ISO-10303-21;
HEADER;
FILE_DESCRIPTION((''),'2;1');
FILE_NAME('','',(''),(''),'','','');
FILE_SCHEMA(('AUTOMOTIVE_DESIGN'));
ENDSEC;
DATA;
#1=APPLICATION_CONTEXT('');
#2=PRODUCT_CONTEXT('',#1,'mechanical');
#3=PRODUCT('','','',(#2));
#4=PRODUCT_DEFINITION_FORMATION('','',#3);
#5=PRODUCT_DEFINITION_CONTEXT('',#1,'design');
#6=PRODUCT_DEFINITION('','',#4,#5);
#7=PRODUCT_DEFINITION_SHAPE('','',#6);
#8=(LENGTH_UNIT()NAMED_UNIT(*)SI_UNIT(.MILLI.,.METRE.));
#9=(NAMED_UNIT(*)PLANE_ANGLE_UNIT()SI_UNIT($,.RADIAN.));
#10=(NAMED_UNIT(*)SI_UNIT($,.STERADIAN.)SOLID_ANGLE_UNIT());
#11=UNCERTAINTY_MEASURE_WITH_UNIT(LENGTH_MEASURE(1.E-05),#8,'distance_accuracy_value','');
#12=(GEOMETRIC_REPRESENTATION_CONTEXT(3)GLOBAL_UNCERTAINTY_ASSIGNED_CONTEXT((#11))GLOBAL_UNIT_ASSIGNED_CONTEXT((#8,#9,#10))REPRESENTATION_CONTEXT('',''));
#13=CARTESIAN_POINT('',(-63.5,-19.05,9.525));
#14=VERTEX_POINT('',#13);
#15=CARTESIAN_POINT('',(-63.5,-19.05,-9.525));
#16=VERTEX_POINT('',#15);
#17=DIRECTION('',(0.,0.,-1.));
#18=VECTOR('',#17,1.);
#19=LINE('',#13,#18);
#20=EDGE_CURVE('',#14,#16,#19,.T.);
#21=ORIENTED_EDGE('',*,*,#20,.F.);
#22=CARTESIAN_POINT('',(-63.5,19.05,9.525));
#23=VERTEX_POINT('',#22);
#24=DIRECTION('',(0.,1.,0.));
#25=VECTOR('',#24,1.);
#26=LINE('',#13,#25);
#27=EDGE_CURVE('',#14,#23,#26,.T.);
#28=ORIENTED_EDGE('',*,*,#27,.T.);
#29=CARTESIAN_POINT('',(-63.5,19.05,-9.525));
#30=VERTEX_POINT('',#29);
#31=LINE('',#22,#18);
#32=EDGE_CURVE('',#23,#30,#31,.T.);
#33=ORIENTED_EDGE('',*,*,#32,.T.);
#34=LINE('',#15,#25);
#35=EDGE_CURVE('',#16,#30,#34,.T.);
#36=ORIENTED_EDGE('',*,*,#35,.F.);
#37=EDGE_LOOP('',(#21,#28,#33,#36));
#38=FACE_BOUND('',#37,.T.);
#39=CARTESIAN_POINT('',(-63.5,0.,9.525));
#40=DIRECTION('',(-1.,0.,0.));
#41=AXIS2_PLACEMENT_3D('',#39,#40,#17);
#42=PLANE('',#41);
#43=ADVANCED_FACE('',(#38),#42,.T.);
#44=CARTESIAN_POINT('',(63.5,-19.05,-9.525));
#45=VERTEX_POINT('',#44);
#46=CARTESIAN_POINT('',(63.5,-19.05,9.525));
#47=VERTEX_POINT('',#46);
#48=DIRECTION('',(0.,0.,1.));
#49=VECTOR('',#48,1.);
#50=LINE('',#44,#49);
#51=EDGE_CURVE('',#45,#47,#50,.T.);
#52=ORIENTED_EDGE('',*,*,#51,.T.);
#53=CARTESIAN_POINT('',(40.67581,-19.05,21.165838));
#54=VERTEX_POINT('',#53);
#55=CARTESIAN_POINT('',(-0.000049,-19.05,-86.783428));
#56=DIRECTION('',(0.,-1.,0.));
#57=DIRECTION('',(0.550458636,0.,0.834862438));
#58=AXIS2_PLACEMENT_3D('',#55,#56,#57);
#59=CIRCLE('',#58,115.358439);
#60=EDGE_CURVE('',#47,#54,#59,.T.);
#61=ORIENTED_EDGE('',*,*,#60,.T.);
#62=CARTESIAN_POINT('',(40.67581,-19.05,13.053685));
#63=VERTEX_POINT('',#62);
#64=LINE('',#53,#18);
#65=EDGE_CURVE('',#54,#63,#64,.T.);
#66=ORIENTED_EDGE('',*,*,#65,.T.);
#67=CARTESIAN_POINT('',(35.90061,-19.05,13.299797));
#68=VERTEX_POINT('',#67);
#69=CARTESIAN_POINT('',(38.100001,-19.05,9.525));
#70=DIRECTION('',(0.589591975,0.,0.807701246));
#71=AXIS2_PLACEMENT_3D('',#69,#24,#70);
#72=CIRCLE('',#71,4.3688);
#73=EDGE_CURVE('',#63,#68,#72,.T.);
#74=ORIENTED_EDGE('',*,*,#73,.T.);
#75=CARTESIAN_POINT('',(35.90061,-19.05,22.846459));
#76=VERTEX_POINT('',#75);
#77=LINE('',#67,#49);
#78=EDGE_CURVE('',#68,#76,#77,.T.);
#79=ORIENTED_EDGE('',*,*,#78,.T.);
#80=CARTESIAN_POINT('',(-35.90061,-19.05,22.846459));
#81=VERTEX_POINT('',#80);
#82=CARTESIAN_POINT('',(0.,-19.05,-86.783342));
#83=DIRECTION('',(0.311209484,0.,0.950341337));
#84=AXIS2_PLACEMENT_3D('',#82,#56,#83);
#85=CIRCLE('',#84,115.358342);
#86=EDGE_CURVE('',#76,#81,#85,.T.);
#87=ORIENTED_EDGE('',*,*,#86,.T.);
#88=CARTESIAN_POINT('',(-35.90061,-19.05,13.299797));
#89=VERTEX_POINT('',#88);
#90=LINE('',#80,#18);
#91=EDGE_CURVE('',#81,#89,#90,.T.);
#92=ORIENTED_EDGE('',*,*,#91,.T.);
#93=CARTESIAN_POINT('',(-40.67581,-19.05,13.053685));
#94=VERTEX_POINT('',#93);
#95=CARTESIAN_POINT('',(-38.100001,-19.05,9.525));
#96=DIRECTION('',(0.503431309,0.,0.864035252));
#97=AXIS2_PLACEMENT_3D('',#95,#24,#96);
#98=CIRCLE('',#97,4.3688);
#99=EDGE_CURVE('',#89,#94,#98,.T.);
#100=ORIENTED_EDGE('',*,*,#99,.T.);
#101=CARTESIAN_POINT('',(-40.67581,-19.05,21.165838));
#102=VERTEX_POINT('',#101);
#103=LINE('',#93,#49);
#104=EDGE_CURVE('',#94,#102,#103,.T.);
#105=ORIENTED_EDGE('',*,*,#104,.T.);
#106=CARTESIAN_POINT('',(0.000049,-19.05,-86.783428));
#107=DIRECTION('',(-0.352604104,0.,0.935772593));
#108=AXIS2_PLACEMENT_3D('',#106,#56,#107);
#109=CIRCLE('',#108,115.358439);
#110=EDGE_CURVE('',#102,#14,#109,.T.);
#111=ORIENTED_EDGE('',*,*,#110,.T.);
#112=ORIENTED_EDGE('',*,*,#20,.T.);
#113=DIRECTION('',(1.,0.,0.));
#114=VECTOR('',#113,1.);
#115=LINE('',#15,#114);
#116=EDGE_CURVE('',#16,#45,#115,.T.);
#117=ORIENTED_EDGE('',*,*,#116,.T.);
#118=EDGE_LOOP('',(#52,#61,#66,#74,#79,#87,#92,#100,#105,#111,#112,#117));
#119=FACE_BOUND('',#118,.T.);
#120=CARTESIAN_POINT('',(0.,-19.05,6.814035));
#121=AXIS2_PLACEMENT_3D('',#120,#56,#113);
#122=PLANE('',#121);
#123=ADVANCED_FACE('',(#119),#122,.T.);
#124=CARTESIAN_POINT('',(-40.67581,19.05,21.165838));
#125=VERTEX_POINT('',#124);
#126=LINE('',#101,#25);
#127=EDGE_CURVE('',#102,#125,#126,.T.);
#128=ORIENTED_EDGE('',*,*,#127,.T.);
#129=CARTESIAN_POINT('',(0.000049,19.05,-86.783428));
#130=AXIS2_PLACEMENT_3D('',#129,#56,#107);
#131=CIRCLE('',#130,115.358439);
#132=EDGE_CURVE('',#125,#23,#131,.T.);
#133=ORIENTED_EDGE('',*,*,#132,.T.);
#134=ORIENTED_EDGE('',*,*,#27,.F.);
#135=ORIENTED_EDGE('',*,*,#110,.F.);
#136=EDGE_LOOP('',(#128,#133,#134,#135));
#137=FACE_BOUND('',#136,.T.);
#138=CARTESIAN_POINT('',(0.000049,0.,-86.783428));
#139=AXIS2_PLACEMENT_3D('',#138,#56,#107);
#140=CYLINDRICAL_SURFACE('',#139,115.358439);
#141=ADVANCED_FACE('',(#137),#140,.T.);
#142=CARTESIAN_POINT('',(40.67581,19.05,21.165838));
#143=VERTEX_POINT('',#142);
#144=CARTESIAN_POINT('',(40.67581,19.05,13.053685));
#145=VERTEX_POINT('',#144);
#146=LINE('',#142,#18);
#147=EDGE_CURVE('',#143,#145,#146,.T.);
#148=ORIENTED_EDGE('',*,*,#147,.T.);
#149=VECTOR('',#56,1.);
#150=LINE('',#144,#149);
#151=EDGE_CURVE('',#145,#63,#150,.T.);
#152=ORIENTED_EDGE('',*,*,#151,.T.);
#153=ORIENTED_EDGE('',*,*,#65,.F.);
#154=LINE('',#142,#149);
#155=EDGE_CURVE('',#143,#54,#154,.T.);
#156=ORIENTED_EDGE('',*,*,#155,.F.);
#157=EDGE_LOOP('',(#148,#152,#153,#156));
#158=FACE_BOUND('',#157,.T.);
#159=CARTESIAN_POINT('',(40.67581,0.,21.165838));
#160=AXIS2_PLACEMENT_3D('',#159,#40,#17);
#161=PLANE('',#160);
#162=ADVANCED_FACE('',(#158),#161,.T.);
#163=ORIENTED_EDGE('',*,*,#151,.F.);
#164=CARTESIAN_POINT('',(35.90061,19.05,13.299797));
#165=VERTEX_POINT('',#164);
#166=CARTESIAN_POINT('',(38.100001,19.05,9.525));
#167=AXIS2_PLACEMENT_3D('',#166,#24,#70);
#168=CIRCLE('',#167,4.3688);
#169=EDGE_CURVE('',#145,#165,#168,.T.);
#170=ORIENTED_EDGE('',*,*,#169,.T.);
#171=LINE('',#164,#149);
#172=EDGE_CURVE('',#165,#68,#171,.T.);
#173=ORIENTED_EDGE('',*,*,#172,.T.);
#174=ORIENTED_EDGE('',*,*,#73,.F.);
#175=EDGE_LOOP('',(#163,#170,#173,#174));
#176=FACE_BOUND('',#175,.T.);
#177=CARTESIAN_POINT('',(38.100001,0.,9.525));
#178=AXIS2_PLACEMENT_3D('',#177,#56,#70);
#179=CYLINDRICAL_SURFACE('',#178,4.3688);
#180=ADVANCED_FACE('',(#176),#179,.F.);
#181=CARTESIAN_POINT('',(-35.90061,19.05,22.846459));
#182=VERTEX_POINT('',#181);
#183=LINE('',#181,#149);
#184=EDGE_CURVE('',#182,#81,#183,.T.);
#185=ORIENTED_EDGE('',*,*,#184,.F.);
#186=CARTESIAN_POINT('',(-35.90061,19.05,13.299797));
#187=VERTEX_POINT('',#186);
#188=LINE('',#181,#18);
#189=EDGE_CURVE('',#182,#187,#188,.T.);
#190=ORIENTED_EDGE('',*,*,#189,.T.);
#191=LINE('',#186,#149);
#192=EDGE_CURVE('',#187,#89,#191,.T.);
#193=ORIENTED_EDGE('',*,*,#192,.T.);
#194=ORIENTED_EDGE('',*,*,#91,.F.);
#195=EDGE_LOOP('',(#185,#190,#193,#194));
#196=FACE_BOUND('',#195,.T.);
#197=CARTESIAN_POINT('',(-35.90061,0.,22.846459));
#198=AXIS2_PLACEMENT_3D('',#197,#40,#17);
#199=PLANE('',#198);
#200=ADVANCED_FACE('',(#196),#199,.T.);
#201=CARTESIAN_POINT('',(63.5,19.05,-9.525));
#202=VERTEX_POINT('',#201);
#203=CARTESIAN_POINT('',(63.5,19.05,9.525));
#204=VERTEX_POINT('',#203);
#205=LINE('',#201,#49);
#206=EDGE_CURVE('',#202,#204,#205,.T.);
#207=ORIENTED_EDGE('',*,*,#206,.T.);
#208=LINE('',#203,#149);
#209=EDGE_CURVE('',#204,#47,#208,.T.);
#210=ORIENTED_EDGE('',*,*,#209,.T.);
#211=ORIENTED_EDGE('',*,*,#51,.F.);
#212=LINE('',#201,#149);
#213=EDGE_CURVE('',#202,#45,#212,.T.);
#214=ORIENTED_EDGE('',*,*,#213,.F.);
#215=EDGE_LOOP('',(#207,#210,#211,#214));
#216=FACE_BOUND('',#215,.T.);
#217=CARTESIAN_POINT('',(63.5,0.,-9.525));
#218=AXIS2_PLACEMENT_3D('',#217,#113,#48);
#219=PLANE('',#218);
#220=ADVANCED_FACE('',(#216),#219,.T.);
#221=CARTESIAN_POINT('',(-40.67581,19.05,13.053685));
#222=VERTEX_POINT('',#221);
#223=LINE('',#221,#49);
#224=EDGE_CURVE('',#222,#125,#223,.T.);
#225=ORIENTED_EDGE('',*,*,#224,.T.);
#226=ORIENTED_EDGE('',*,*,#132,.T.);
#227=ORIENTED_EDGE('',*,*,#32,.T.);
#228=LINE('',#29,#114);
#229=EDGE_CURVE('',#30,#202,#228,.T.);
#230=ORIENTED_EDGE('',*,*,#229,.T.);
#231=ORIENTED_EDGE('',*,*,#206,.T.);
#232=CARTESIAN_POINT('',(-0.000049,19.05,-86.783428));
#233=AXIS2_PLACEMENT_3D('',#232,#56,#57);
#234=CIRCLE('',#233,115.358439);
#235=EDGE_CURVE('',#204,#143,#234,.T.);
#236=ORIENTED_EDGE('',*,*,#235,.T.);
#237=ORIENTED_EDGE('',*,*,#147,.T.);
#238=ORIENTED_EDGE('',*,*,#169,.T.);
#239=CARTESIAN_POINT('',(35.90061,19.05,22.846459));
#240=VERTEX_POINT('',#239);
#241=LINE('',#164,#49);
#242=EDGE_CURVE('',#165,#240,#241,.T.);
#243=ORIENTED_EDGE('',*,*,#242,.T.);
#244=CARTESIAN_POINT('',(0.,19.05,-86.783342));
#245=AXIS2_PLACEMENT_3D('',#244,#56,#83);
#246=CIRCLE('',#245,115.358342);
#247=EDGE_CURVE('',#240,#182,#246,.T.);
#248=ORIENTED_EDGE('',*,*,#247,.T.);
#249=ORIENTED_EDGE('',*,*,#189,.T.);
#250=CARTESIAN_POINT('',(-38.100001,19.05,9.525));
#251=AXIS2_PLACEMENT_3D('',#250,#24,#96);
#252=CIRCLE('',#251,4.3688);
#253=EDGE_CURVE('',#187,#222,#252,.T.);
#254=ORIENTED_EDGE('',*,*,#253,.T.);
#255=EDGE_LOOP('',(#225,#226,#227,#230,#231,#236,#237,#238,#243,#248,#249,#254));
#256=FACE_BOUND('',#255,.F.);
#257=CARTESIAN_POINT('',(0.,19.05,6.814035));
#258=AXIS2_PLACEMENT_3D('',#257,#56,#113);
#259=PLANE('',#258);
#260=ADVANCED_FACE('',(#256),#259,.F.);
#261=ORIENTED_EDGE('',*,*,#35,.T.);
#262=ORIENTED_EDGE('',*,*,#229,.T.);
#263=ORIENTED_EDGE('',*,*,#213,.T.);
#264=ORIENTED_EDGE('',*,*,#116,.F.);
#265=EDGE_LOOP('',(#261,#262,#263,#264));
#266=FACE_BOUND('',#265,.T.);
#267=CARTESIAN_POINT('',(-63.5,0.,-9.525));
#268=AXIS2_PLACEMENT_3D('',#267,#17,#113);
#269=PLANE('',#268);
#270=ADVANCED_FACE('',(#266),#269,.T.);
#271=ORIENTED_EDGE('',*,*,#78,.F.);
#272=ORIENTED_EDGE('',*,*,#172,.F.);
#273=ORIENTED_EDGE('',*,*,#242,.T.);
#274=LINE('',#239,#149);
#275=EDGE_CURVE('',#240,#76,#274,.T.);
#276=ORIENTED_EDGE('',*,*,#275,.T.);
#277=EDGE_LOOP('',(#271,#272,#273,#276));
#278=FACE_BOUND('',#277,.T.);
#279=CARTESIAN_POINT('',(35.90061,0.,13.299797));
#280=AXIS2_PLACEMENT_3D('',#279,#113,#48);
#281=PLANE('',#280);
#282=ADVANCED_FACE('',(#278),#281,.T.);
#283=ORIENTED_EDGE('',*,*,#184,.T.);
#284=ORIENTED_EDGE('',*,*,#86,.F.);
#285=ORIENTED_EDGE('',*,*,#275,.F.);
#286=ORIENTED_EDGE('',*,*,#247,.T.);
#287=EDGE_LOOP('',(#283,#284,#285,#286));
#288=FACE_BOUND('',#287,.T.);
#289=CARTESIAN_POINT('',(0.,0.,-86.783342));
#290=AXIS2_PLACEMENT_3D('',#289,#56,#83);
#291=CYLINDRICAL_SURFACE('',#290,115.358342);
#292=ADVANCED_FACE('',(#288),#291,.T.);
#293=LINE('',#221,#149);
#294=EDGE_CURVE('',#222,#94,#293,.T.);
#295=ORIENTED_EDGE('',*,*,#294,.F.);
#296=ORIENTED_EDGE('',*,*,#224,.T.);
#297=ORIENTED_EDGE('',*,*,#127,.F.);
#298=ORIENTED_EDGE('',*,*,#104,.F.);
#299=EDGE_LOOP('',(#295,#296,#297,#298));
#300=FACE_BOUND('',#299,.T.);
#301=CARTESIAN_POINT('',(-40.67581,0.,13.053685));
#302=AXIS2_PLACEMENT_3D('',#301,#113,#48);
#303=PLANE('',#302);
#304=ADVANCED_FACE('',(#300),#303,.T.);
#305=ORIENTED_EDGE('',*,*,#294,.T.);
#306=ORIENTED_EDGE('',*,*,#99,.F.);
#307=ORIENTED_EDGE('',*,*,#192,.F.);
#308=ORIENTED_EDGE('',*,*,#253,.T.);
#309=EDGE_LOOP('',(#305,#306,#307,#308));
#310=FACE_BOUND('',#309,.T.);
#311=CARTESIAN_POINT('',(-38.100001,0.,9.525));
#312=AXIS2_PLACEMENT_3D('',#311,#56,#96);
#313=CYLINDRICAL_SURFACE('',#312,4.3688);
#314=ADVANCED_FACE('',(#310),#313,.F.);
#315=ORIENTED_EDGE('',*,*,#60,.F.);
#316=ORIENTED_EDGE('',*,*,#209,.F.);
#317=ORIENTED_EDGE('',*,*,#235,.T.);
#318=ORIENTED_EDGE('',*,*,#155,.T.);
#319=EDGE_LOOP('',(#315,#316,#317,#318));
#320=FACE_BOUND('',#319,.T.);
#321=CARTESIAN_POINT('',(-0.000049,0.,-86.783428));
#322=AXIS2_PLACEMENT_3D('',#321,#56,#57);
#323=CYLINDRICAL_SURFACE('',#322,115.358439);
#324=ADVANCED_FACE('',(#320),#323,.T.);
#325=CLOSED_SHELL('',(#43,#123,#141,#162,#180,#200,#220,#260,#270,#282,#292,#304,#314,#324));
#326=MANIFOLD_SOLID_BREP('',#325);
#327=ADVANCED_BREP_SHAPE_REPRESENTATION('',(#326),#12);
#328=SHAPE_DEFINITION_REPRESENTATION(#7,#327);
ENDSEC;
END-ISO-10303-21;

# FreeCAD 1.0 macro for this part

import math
import FreeCAD as App
import Part
import Sketcher
Q = App.Units.Quantity

doc = App.newDocument("Part")
body = doc.addObject("PartDesign::Body", "Body")

sketch1 = body.newObject("Sketcher::SketchObject", "Sketch")
sketch1.AttachmentSupport = (doc.getObject("XZ_Plane"), [""])
sketch1.MapMode = "FlatFace"
sketch1.addGeometry([
    Part.LineSegment(App.Vector(-63.5, -9.525, 0), App.Vector(63.5, -9.525, 0)),
    Part.LineSegment(App.Vector(63.5, -9.525, 0), App.Vector(63.5, 9.525, 0)),
    Part.ArcOfCircle(Part.Circle(App.Vector(-0.000049, -86.783428, 0), App.Vector(0, 0, 1), 115.358439), math.radians(56.601517), math.radians(69.353323)),
    Part.LineSegment(App.Vector(40.67581, 21.165838, 0), App.Vector(40.67581, 13.053685, 0)),
    Part.ArcOfCircle(Part.Circle(App.Vector(38.100001, 9.525, 0), App.Vector(0, 0, 1), 4.3688), math.radians(120.227274), math.radians(413.871941)),
    Part.LineSegment(App.Vector(35.90061, 13.299797, 0), App.Vector(35.90061, 22.846459, 0)),
    Part.ArcOfCircle(Part.Circle(App.Vector(0, -86.783342, 0), App.Vector(0, 0, 1), 115.358342), math.radians(71.867865), math.radians(108.132135)),
    Part.LineSegment(App.Vector(-35.90061, 22.846459, 0), App.Vector(-35.90061, 13.299797, 0)),
    Part.ArcOfCircle(Part.Circle(App.Vector(-38.100001, 9.525, 0), App.Vector(0, 0, 1), 4.3688), math.radians(126.128059), math.radians(419.772726)),
    Part.LineSegment(App.Vector(-40.67581, 13.053685, 0), App.Vector(-40.67581, 21.165838, 0)),
    Part.ArcOfCircle(Part.Circle(App.Vector(0.000049, -86.783428, 0), App.Vector(0, 0, 1), 115.358439), math.radians(110.646677), math.radians(123.398483)),
    Part.LineSegment(App.Vector(-63.5, 9.525, 0), App.Vector(-63.5, -9.525, 0)),
], False)
sketch1.addConstraint([
    Sketcher.Constraint("Coincident", 0, 2, 1, 1),
    Sketcher.Constraint("Coincident", 1, 2, 2, 1),
    Sketcher.Constraint("Coincident", 2, 2, 3, 1),
    Sketcher.Constraint("Coincident", 3, 2, 4, 2),
    Sketcher.Constraint("Coincident", 4, 1, 5, 1),
    Sketcher.Constraint("Coincident", 5, 2, 6, 1),
    Sketcher.Constraint("Coincident", 6, 2, 7, 1),
    Sketcher.Constraint("Coincident", 7, 2, 8, 2),
    Sketcher.Constraint("Coincident", 8, 1, 9, 1),
    Sketcher.Constraint("Coincident", 9, 2, 10, 1),
    Sketcher.Constraint("Coincident", 10, 2, 11, 1),
    Sketcher.Constraint("Coincident", 11, 2, 0, 1),
    Sketcher.Constraint("Horizontal", 0),
    Sketcher.Constraint("Vertical", 1),
    Sketcher.Constraint("Vertical", 3),
    Sketcher.Constraint("Vertical", 5),
    Sketcher.Constraint("Vertical", 7),
    Sketcher.Constraint("Vertical", 9),
    Sketcher.Constraint("Vertical", 11),
    Sketcher.Constraint("Equal", 4, 8),
    Sketcher.Constraint("Equal", 2, 10),
    Sketcher.Constraint("Symmetric", 0, 2, 10, 2, -1, 1),
    Sketcher.Constraint("Symmetric", 4, 3, 8, 3, -2),
    Sketcher.Constraint("Symmetric", 2, 3, 10, 3, -2),
    Sketcher.Constraint("Symmetric", 5, 2, 6, 2, -2),
    Sketcher.Constraint("Horizontal", 8, 3, 1, 2),
    Sketcher.Constraint("Horizontal", 3, 2, 8, 1),
    Sketcher.Constraint("DistanceX", 0, 1, 0, 2, Q("5 in")),
    Sketcher.Constraint("Radius", 4, Q("0.172 in")),
    Sketcher.Constraint("DistanceX", 8, 3, 4, 3, Q("3.0000001 in")),
    Sketcher.Constraint("DistanceY", 1, 1, 1, 2, Q("0.75 in")),
    Sketcher.Constraint("Radius", 2, 115.358439),
    Sketcher.Constraint("Radius", 6, 115.358342),
    Sketcher.Constraint("DistanceX", 4, 1, 3, 2, Q("0.188 in")),
    Sketcher.Constraint("DistanceY", 3, 2, 3, 1, 8.112153),
    Sketcher.Constraint("DistanceY", 5, 1, 5, 2, 9.546662),
    Sketcher.Constraint("DistanceY", 6, 3, -1, 1, 86.783342),
])
pad1 = body.newObject("PartDesign::Pad", "Pad")
pad1.Profile = sketch1
pad1.Length = Q("1.5 in")
pad1.Midplane = True

doc.recompute()
